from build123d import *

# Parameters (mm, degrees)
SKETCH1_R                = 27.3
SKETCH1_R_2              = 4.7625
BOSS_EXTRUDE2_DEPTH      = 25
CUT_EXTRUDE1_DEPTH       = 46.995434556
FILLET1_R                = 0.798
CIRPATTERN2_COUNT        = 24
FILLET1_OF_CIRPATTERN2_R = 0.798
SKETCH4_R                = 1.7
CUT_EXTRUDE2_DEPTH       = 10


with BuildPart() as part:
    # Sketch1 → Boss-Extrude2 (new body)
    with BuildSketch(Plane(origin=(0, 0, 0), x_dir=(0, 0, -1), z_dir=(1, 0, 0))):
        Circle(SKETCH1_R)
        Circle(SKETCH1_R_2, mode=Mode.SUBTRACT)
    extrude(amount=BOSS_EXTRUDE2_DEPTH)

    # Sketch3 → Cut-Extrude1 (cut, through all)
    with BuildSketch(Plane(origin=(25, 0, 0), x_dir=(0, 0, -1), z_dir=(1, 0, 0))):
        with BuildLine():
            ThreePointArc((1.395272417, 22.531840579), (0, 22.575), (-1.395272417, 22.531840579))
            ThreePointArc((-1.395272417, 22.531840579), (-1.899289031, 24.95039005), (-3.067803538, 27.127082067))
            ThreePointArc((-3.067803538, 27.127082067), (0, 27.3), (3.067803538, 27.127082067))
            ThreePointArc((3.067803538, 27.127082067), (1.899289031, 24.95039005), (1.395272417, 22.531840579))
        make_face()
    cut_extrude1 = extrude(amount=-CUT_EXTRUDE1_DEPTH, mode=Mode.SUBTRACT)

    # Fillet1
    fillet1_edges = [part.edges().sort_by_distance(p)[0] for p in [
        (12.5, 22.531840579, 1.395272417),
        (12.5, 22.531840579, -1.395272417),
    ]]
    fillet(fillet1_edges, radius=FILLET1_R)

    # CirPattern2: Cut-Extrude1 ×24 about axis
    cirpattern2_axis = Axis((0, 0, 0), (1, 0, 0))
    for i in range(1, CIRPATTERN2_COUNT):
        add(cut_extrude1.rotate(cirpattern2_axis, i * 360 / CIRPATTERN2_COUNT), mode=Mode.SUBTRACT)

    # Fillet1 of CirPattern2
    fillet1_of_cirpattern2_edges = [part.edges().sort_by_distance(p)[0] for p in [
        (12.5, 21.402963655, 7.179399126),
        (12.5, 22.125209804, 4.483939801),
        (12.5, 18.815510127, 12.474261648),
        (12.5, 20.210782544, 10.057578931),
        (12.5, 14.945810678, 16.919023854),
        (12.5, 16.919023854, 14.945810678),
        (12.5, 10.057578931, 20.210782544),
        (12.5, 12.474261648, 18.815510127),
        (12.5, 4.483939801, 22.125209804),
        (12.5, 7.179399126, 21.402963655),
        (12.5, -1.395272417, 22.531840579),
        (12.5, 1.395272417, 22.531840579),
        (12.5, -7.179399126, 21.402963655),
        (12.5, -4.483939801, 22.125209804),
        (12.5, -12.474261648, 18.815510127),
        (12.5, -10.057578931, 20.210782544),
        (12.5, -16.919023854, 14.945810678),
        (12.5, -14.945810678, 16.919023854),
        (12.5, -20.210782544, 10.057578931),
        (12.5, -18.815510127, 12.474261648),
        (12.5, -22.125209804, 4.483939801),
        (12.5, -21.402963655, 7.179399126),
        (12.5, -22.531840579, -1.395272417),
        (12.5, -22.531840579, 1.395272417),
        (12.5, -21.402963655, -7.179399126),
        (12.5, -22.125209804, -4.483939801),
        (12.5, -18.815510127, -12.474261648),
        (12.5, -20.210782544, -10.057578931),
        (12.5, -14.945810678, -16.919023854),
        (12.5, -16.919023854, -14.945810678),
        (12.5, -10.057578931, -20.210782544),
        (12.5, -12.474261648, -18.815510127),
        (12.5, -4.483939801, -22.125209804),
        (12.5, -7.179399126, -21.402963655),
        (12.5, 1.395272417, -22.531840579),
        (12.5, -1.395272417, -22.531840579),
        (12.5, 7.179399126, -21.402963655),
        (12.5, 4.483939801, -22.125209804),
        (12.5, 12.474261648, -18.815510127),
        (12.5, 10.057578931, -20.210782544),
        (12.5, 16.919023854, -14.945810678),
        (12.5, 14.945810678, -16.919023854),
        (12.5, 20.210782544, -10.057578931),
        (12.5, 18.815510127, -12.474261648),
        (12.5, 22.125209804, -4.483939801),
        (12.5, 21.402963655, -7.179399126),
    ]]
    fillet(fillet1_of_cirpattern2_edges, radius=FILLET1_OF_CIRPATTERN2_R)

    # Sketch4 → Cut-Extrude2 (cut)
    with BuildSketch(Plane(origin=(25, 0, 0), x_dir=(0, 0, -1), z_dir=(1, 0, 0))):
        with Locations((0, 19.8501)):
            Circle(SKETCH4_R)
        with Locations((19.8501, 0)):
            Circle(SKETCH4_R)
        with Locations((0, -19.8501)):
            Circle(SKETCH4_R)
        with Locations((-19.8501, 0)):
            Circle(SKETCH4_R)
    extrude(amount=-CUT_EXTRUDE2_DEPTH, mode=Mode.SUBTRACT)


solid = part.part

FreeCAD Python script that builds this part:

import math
import FreeCAD as App
import Part
import Sketcher


def edges_at(feature, points):
    """Names of the edges that pass closest to the given points."""
    edges = feature.Shape.Edges
    near = lambda p: min(range(len(edges)), key=lambda i: edges[i].distToShape(Part.Vertex(*p))[0])
    return sorted({f"Edge{near(p) + 1}" for p in points})

doc = App.newDocument("Part")
body = doc.addObject("PartDesign::Body", "Body")

# Sketch on YZ plane
sketch1 = body.newObject("Sketcher::SketchObject", "Sketch")
sketch1.AttachmentSupport = (doc.getObject("YZ_Plane"), [""])
sketch1.MapMode = "FlatFace"
sketch1.addGeometry([
    Part.Circle(App.Vector(0, 0, 0), App.Vector(0, 0, 1), 27.3),
    Part.Circle(App.Vector(0, 0, 0), App.Vector(0, 0, 1), 4.7625),
], False)
sketch1.addConstraint([
    Sketcher.Constraint("Coincident", 0, 3, -1, 1),
    Sketcher.Constraint("Coincident", 1, 3, -1, 1),
    Sketcher.Constraint("Diameter", 0, 54.6),
    Sketcher.Constraint("Diameter", 1, 9.525),
])
pad1 = body.newObject("PartDesign::Pad", "Pad")
pad1.Profile = sketch1
pad1.Length = 25

# Sketch on YZ plane
sketch2 = body.newObject("Sketcher::SketchObject", "Sketch001")
sketch2.AttachmentSupport = (doc.getObject("YZ_Plane"), [""])
sketch2.MapMode = "FlatFace"
sketch2.AttachmentOffset = App.Placement(App.Vector(0, 0, 25), App.Rotation())
sketch2.addGeometry([
    Part.ArcOfCircle(Part.Circle(App.Vector(0, 0, 0), App.Vector(0, 0, 1), 22.575), math.radians(-3.543486), math.radians(3.543486)),
    Part.ArcOfCircle(Part.Circle(App.Vector(21.998387, -10.00985, 0), App.Vector(0, 0, 1), 8.631078), math.radians(53.543486), math.radians(86.456514)),
    Part.ArcOfCircle(Part.Circle(App.Vector(0, 0, 0), App.Vector(0, 0, 1), 27.3), math.radians(-6.45217), math.radians(6.45217)),
    Part.ArcOfCircle(Part.Circle(App.Vector(21.998387, 10.00985, 0), App.Vector(0, 0, 1), 8.631078), math.radians(-86.456514), math.radians(-53.543486)),
], False)
sketch2.addConstraint([
    Sketcher.Constraint("Coincident", 0, 1, 1, 2),
    Sketcher.Constraint("Coincident", 1, 1, 2, 1),
    Sketcher.Constraint("Coincident", 2, 2, 3, 2),
    Sketcher.Constraint("Coincident", 3, 1, 0, 2),
    Sketcher.Constraint("Coincident", 0, 3, -1, 1),
    Sketcher.Constraint("Coincident", 2, 3, -1, 1),
    Sketcher.Constraint("Equal", 1, 3),
    Sketcher.Constraint("Symmetric", 1, 3, 3, 3, -1),
    Sketcher.Constraint("Radius", 2, 27.3),
    Sketcher.Constraint("Radius", 0, 22.575),
    Sketcher.Constraint("Radius", 1, 8.631078),
    Sketcher.Constraint("DistanceY", 1, 3, 3, 3, 20.019699),
    Sketcher.Constraint("DistanceX", 0, 1, 1, 1, 4.595241),
])
pocket1 = body.newObject("PartDesign::Pocket", "Pocket")
pocket1.Profile = sketch2
pocket1.Type = "ThroughAll"
doc.recompute()

fillet = body.newObject("PartDesign::Fillet", "Fillet")
fillet.Base = (pocket1, edges_at(pocket1, [(12.5, 22.532, 1.395), (12.5, 22.532, -1.395)]))
fillet.Radius = 0.798
doc.recompute()

polarpattern = body.newObject("PartDesign::PolarPattern", "PolarPattern")
polarpattern.Originals = [pocket1]
polarpattern.Axis = (doc.getObject("X_Axis"), [""])
polarpattern.Angle = 360
polarpattern.Occurrences = 24
body.Tip = polarpattern
doc.recompute()

fillet2 = body.newObject("PartDesign::Fillet", "Fillet001")
fillet2.Base = (polarpattern, edges_at(polarpattern, [
    (12.5, 21.403, 7.179),
    (12.5, 22.125, 4.484),
    (12.5, 18.816, 12.474),
    (12.5, 20.211, 10.058),
    (12.5, 14.946, 16.919),
    (12.5, 16.919, 14.946),
    (12.5, 10.058, 20.211),
    (12.5, 12.474, 18.816),
    (12.5, 4.484, 22.125),
    (12.5, 7.179, 21.403),
    (12.5, -1.395, 22.532),
    (12.5, 1.395, 22.532),
    (12.5, -7.179, 21.403),
    (12.5, -4.484, 22.125),
    (12.5, -12.474, 18.816),
    (12.5, -10.058, 20.211),
    (12.5, -16.919, 14.946),
    (12.5, -14.946, 16.919),
    (12.5, -20.211, 10.058),
    (12.5, -18.816, 12.474),
    (12.5, -22.125, 4.484),
    (12.5, -21.403, 7.179),
    (12.5, -22.532, -1.395),
    (12.5, -22.532, 1.395),
    (12.5, -21.403, -7.179),
    (12.5, -22.125, -4.484),
    (12.5, -18.816, -12.474),
    (12.5, -20.211, -10.058),
    (12.5, -14.946, -16.919),
    (12.5, -16.919, -14.946),
    (12.5, -10.058, -20.211),
    (12.5, -12.474, -18.816),
    (12.5, -4.484, -22.125),
    (12.5, -7.179, -21.403),
    (12.5, 1.395, -22.532),
    (12.5, -1.395, -22.532),
    (12.5, 7.179, -21.403),
    (12.5, 4.484, -22.125),
    (12.5, 12.474, -18.816),
    (12.5, 10.058, -20.211),
    (12.5, 16.919, -14.946),
    (12.5, 14.946, -16.919),
    (12.5, 20.211, -10.058),
    (12.5, 18.816, -12.474),
    (12.5, 22.125, -4.484),
    (12.5, 21.403, -7.179),
]))
fillet2.Radius = 0.798

# Sketch on YZ plane
sketch3 = body.newObject("Sketcher::SketchObject", "Sketch002")
sketch3.AttachmentSupport = (doc.getObject("YZ_Plane"), [""])
sketch3.MapMode = "FlatFace"
sketch3.AttachmentOffset = App.Placement(App.Vector(0, 0, 25), App.Rotation())
sketch3.addGeometry([
    Part.Circle(App.Vector(19.8501, 0, 0), App.Vector(0, 0, 1), 1.7),
    Part.Circle(App.Vector(0, -19.8501, 0), App.Vector(0, 0, 1), 1.7),
    Part.Circle(App.Vector(-19.8501, 0, 0), App.Vector(0, 0, 1), 1.7),
    Part.Circle(App.Vector(0, 19.8501, 0), App.Vector(0, 0, 1), 1.7),
], False)
sketch3.addConstraint([
    Sketcher.Constraint("Equal", 0, 1),
    Sketcher.Constraint("Equal", 1, 2),
    Sketcher.Constraint("Equal", 2, 3),
    Sketcher.Constraint("Symmetric", 0, 3, 2, 3, -1, 1),
    Sketcher.Constraint("Symmetric", 1, 3, 3, 3, -1, 1),
    Sketcher.Constraint("PointOnObject", 0, 3, -1),
    Sketcher.Constraint("PointOnObject", 1, 3, -2),
    Sketcher.Constraint("Diameter", 0, 3.4),
    Sketcher.Constraint("DistanceX", -1, 1, 0, 3, 19.8501),
    Sketcher.Constraint("DistanceY", 1, 3, -1, 1, 19.8501),
])
pocket2 = body.newObject("PartDesign::Pocket", "Pocket001")
pocket2.Profile = sketch3
pocket2.Length = 10

doc.recompute()
